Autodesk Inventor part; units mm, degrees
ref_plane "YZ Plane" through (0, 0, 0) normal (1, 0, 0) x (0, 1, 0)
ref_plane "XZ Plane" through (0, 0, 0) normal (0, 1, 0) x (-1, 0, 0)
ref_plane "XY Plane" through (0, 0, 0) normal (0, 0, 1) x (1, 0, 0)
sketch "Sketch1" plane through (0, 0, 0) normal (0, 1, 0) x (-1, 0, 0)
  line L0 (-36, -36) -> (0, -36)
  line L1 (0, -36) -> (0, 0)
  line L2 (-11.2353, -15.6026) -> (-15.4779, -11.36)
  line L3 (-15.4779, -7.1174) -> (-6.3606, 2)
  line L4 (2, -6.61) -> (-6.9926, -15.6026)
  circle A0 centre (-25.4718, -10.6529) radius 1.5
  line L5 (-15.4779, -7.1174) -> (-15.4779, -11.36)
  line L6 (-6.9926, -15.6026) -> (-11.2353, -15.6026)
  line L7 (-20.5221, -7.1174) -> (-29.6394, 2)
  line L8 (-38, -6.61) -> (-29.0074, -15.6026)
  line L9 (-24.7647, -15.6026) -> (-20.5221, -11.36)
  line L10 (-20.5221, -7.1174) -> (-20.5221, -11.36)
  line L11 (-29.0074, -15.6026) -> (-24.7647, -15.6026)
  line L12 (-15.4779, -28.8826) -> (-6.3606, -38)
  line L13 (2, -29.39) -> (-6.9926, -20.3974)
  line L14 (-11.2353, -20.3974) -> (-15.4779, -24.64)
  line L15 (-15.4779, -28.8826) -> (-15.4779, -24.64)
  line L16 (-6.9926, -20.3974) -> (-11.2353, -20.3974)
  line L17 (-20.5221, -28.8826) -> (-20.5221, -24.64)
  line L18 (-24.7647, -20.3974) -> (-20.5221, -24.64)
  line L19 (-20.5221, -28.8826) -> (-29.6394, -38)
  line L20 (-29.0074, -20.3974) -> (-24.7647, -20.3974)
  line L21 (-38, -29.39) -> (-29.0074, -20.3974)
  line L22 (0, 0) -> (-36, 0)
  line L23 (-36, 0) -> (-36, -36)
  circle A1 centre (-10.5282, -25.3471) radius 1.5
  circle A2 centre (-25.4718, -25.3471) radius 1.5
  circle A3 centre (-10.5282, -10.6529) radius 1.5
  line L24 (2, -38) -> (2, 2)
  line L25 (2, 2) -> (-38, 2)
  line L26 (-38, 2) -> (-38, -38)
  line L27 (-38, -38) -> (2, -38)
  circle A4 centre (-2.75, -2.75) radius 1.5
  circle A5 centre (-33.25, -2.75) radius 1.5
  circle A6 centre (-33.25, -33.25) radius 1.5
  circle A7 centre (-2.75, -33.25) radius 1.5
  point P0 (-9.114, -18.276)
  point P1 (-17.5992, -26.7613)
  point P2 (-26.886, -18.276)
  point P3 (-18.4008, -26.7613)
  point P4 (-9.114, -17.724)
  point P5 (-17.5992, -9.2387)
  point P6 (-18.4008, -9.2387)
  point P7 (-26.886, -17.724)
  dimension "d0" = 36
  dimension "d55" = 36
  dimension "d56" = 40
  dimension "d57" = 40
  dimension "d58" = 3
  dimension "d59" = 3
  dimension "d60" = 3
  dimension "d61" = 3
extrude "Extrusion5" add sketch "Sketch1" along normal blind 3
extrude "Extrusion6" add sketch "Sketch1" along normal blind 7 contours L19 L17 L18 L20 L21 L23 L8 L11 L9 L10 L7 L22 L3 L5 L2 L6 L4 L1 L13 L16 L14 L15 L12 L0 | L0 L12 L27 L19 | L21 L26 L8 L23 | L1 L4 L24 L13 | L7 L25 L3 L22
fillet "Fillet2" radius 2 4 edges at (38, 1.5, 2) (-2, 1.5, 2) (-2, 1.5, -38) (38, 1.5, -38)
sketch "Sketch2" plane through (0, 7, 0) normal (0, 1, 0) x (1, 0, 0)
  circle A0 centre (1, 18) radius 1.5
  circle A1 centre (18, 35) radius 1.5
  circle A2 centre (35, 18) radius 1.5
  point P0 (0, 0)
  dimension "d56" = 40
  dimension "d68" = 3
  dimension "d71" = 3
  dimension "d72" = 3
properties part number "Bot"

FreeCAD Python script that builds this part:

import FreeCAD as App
import Part
import Sketcher
Q = App.Units.Quantity


def edges_at(feature, points):
    """Names of the edges that pass closest to the given points."""
    edges = feature.Shape.Edges
    near = lambda p: min(range(len(edges)), key=lambda i: edges[i].distToShape(Part.Vertex(*p))[0])
    return sorted({f"Edge{near(p) + 1}" for p in points})


def add_polygon(sketch, points):
    """Adds a closed chain of lines whose ends are joined by coincident constraints."""
    first, n = sketch.GeometryCount, len(points)
    for a, b in zip(points, points[1:] + points[:1]):
        sketch.addGeometry(Part.LineSegment(App.Vector(*a, 0), App.Vector(*b, 0)), False)
    for i in range(n):
        sketch.addConstraint(Sketcher.Constraint("Coincident", first + i, 2, first + (i + 1) % n, 1))

doc = App.newDocument("Part")
body = doc.addObject("PartDesign::Body", "Body")

# Sketch on XZ plane
sketch1 = body.newObject("Sketcher::SketchObject", "Sketch")
sketch1.AttachmentSupport = (doc.getObject("XZ_Plane"), [""])
sketch1.MapMode = "FlatFace"
add_polygon(sketch1, [(38, -38), (-2, -38), (-2, 2), (38, 2)])  # lines 0-3
sketch1.addGeometry(Part.Circle(App.Vector(33.25, -33.25, 0), App.Vector(0, 0, 1), 1.5), False)  # 4
sketch1.addGeometry(Part.Circle(App.Vector(25.4718, -25.3471, 0), App.Vector(0, 0, 1), 1.5), False)  # 5
sketch1.addGeometry(Part.Circle(App.Vector(2.75, -33.25, 0), App.Vector(0, 0, 1), 1.5), False)  # 6
sketch1.addGeometry(Part.Circle(App.Vector(10.5282, -25.3471, 0), App.Vector(0, 0, 1), 1.5), False)  # 7
sketch1.addGeometry(Part.Circle(App.Vector(33.25, -2.75, 0), App.Vector(0, 0, 1), 1.5), False)  # 8
sketch1.addGeometry(Part.Circle(App.Vector(25.4718, -10.6529, 0), App.Vector(0, 0, 1), 1.5), False)  # 9
sketch1.addGeometry(Part.Circle(App.Vector(2.75, -2.75, 0), App.Vector(0, 0, 1), 1.5), False)  # 10
sketch1.addGeometry(Part.Circle(App.Vector(10.5282, -10.6529, 0), App.Vector(0, 0, 1), 1.5), False)  # 11
sketch1.addConstraint(Sketcher.Constraint("Horizontal", 0))
sketch1.addConstraint(Sketcher.Constraint("Vertical", 1))
sketch1.addConstraint(Sketcher.Constraint("Horizontal", 2))
sketch1.addConstraint(Sketcher.Constraint("Vertical", 3))
sketch1.addConstraint(Sketcher.Constraint("Equal", 4, 5))
sketch1.addConstraint(Sketcher.Constraint("Equal", 5, 6))
sketch1.addConstraint(Sketcher.Constraint("Equal", 6, 7))
sketch1.addConstraint(Sketcher.Constraint("Equal", 7, 8))
sketch1.addConstraint(Sketcher.Constraint("Equal", 8, 9))
sketch1.addConstraint(Sketcher.Constraint("Equal", 9, 10))
sketch1.addConstraint(Sketcher.Constraint("Equal", 10, 11))
sketch1.addConstraint(Sketcher.Constraint("Horizontal", 4, 3, 6, 3))
sketch1.addConstraint(Sketcher.Constraint("Horizontal", 5, 3, 7, 3))
sketch1.addConstraint(Sketcher.Constraint("Horizontal", 8, 3, 10, 3))
sketch1.addConstraint(Sketcher.Constraint("Horizontal", 9, 3, 11, 3))
sketch1.addConstraint(Sketcher.Constraint("Vertical", 4, 3, 8, 3))
sketch1.addConstraint(Sketcher.Constraint("Vertical", 5, 3, 9, 3))
sketch1.addConstraint(Sketcher.Constraint("Vertical", 6, 3, 10, 3))
sketch1.addConstraint(Sketcher.Constraint("Vertical", 7, 3, 11, 3))
sketch1.addConstraint(Sketcher.Constraint("Equal", 2, 1))
sketch1.addConstraint(Sketcher.Constraint("Diameter", 4, Q("3 mm")))
sketch1.addConstraint(Sketcher.Constraint("DistanceX", 0, 2, 0, 1, Q("40 mm")))
sketch1.addConstraint(Sketcher.Constraint("DistanceX", 0, 2, -1, 1, Q("2 mm")))
sketch1.addConstraint(Sketcher.Constraint("DistanceY", 0, 2, -1, 1, Q("38 mm")))
sketch1.addConstraint(Sketcher.Constraint("DistanceX", 6, 3, 4, 3, Q("30.5 mm")))
sketch1.addConstraint(Sketcher.Constraint("DistanceY", 4, 3, 8, 3, Q("30.5 mm")))
sketch1.addConstraint(Sketcher.Constraint("DistanceX", -1, 1, 4, 3, Q("33.25 mm")))
sketch1.addConstraint(Sketcher.Constraint("DistanceY", 4, 3, -1, 1, Q("33.25 mm")))
sketch1.addConstraint(Sketcher.Constraint("DistanceY", 5, 3, -1, 1, Q("25.347 mm")))
sketch1.addConstraint(Sketcher.Constraint("DistanceY", 9, 3, -1, 1, Q("10.653 mm")))
sketch1.addConstraint(Sketcher.Constraint("DistanceX", -1, 1, 5, 3, Q("25.4718 mm")))
sketch1.addConstraint(Sketcher.Constraint("DistanceX", -1, 1, 7, 3, Q("10.5282 mm")))
pad1 = body.newObject("PartDesign::Pad", "Pad")
pad1.Profile = sketch1
pad1.Length = 3
pad1.Reversed = True

# Sketch on XZ plane
sketch2 = body.newObject("Sketcher::SketchObject", "Sketch001")
sketch2.AttachmentSupport = (doc.getObject("XZ_Plane"), [""])
sketch2.MapMode = "FlatFace"
add_polygon(sketch2, [(20.5221, -28.8826), (29.6394, -38), (6.3606, -38), (15.4779, -28.8826), (15.4779, -24.64), (11.2353, -20.3974), (6.9926, -20.3974), (-2, -29.39), (-2, -6.61), (6.9926, -15.6026), (11.2353, -15.6026), (15.4779, -11.36), (15.4779, -7.1174), (6.3606, 2), (29.6394, 2), (20.5221, -7.1174), (20.5221, -11.36), (24.7647, -15.6026), (29.0074, -15.6026), (38, -6.61), (38, -29.39), (29.0074, -20.3974), (24.7647, -20.3974), (20.5221, -24.64)])  # lines 0-23
sketch2.addConstraint(Sketcher.Constraint("Horizontal", 1))
sketch2.addConstraint(Sketcher.Constraint("Vertical", 3))
sketch2.addConstraint(Sketcher.Constraint("Horizontal", 5))
sketch2.addConstraint(Sketcher.Constraint("Vertical", 7))
sketch2.addConstraint(Sketcher.Constraint("Horizontal", 9))
sketch2.addConstraint(Sketcher.Constraint("Vertical", 11))
sketch2.addConstraint(Sketcher.Constraint("Horizontal", 13))
sketch2.addConstraint(Sketcher.Constraint("Vertical", 15))
sketch2.addConstraint(Sketcher.Constraint("Horizontal", 17))
sketch2.addConstraint(Sketcher.Constraint("Vertical", 19))
sketch2.addConstraint(Sketcher.Constraint("Horizontal", 21))
sketch2.addConstraint(Sketcher.Constraint("Vertical", 23))
sketch2.addConstraint(Sketcher.Constraint("Perpendicular", 0, 2))
sketch2.addConstraint(Sketcher.Constraint("Perpendicular", 2, 4))
sketch2.addConstraint(Sketcher.Constraint("Perpendicular", 4, 6))
sketch2.addConstraint(Sketcher.Constraint("Perpendicular", 6, 8))
sketch2.addConstraint(Sketcher.Constraint("Perpendicular", 8, 10))
sketch2.addConstraint(Sketcher.Constraint("Perpendicular", 10, 12))
sketch2.addConstraint(Sketcher.Constraint("Perpendicular", 12, 14))
sketch2.addConstraint(Sketcher.Constraint("Perpendicular", 14, 16))
sketch2.addConstraint(Sketcher.Constraint("Perpendicular", 16, 18))
sketch2.addConstraint(Sketcher.Constraint("Perpendicular", 18, 20))
sketch2.addConstraint(Sketcher.Constraint("Perpendicular", 20, 22))
sketch2.addConstraint(Sketcher.Constraint("Horizontal", 11, 2, 14, 2))
sketch2.addConstraint(Sketcher.Constraint("Horizontal", 10, 2, 15, 2))
sketch2.addConstraint(Sketcher.Constraint("Horizontal", 9, 2, 16, 2))
sketch2.addConstraint(Sketcher.Constraint("Horizontal", 7, 2, 18, 2))
sketch2.addConstraint(Sketcher.Constraint("Horizontal", 6, 2, 19, 2))
sketch2.addConstraint(Sketcher.Constraint("Horizontal", 5, 2, 20, 2))
sketch2.addConstraint(Sketcher.Constraint("Horizontal", 3, 2, 22, 2))
sketch2.addConstraint(Sketcher.Constraint("Horizontal", 2, 2, 23, 2))
sketch2.addConstraint(Sketcher.Constraint("Vertical", 5, 2, 8, 2))
sketch2.addConstraint(Sketcher.Constraint("Vertical", 4, 2, 9, 2))
sketch2.addConstraint(Sketcher.Constraint("Vertical", 3, 2, 10, 2))
sketch2.addConstraint(Sketcher.Constraint("Vertical", 1, 2, 12, 2))
sketch2.addConstraint(Sketcher.Constraint("Vertical", 0, 2, 13, 2))
sketch2.addConstraint(Sketcher.Constraint("Vertical", 17, 2, 20, 2))
sketch2.addConstraint(Sketcher.Constraint("Equal", 9, 17))
sketch2.addConstraint(Sketcher.Constraint("Equal", 21, 3))
sketch2.addConstraint(Sketcher.Constraint("Equal", 3, 11))
sketch2.addConstraint(Sketcher.Constraint("Distance", 4, Q("6 mm")))
sketch2.addConstraint(Sketcher.Constraint("DistanceY", 0, 2, -1, 1, Q("38 mm")))
sketch2.addConstraint(Sketcher.Constraint("DistanceX", 6, 2, -1, 1, Q("2 mm")))
sketch2.addConstraint(Sketcher.Constraint("DistanceY", -1, 1, 12, 2, Q("2 mm")))
sketch2.addConstraint(Sketcher.Constraint("DistanceX", -1, 1, 18, 2, Q("38 mm")))
sketch2.addConstraint(Sketcher.Constraint("DistanceY", 7, 1, 7, 2, Q("22.78 mm")))
sketch2.addConstraint(Sketcher.Constraint("DistanceY", 3, 2, -1, 1, Q("24.64 mm")))
sketch2.addConstraint(Sketcher.Constraint("DistanceY", 2, 2, 8, 2, Q("13.28 mm")))
pad2 = body.newObject("PartDesign::Pad", "Pad001")
pad2.Profile = sketch2
pad2.Length = 7
pad2.Reversed = True
doc.recompute()

fillet = body.newObject("PartDesign::Fillet", "Fillet")
fillet.Base = (pad2, edges_at(pad2, [
    (38, 1.5, 2),
    (-2, 1.5, 2),
    (-2, 1.5, -38),
    (38, 1.5, -38),
]))
fillet.Radius = 2

doc.recompute()
